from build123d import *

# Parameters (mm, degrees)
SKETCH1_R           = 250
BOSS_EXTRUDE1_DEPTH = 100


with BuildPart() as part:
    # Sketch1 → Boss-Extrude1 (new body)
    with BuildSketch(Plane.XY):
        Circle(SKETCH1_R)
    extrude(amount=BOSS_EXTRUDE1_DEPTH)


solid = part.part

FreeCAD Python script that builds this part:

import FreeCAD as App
import Part
import Sketcher

V = App.Vector

doc = App.newDocument("Part")
body = doc.addObject("PartDesign::Body", "Body")

# Sketch on XY plane
sketch1 = body.newObject("Sketcher::SketchObject", "Sketch")
sketch1.AttachmentSupport = (doc.getObject("XY_Plane"), [""])
sketch1.MapMode = "FlatFace"
sketch1.addGeometry(Part.Circle(V(0, 0, 0), V(0, 0, 1), 250), False)
sketch1.addConstraint([
    Sketcher.Constraint("Coincident", 0, 3, -1, 1),
    Sketcher.Constraint("Diameter", 0, 500.0),
])
pad1 = body.newObject("PartDesign::Pad", "Pad")
pad1.Profile = sketch1
pad1.Length = 100

doc.recompute()
